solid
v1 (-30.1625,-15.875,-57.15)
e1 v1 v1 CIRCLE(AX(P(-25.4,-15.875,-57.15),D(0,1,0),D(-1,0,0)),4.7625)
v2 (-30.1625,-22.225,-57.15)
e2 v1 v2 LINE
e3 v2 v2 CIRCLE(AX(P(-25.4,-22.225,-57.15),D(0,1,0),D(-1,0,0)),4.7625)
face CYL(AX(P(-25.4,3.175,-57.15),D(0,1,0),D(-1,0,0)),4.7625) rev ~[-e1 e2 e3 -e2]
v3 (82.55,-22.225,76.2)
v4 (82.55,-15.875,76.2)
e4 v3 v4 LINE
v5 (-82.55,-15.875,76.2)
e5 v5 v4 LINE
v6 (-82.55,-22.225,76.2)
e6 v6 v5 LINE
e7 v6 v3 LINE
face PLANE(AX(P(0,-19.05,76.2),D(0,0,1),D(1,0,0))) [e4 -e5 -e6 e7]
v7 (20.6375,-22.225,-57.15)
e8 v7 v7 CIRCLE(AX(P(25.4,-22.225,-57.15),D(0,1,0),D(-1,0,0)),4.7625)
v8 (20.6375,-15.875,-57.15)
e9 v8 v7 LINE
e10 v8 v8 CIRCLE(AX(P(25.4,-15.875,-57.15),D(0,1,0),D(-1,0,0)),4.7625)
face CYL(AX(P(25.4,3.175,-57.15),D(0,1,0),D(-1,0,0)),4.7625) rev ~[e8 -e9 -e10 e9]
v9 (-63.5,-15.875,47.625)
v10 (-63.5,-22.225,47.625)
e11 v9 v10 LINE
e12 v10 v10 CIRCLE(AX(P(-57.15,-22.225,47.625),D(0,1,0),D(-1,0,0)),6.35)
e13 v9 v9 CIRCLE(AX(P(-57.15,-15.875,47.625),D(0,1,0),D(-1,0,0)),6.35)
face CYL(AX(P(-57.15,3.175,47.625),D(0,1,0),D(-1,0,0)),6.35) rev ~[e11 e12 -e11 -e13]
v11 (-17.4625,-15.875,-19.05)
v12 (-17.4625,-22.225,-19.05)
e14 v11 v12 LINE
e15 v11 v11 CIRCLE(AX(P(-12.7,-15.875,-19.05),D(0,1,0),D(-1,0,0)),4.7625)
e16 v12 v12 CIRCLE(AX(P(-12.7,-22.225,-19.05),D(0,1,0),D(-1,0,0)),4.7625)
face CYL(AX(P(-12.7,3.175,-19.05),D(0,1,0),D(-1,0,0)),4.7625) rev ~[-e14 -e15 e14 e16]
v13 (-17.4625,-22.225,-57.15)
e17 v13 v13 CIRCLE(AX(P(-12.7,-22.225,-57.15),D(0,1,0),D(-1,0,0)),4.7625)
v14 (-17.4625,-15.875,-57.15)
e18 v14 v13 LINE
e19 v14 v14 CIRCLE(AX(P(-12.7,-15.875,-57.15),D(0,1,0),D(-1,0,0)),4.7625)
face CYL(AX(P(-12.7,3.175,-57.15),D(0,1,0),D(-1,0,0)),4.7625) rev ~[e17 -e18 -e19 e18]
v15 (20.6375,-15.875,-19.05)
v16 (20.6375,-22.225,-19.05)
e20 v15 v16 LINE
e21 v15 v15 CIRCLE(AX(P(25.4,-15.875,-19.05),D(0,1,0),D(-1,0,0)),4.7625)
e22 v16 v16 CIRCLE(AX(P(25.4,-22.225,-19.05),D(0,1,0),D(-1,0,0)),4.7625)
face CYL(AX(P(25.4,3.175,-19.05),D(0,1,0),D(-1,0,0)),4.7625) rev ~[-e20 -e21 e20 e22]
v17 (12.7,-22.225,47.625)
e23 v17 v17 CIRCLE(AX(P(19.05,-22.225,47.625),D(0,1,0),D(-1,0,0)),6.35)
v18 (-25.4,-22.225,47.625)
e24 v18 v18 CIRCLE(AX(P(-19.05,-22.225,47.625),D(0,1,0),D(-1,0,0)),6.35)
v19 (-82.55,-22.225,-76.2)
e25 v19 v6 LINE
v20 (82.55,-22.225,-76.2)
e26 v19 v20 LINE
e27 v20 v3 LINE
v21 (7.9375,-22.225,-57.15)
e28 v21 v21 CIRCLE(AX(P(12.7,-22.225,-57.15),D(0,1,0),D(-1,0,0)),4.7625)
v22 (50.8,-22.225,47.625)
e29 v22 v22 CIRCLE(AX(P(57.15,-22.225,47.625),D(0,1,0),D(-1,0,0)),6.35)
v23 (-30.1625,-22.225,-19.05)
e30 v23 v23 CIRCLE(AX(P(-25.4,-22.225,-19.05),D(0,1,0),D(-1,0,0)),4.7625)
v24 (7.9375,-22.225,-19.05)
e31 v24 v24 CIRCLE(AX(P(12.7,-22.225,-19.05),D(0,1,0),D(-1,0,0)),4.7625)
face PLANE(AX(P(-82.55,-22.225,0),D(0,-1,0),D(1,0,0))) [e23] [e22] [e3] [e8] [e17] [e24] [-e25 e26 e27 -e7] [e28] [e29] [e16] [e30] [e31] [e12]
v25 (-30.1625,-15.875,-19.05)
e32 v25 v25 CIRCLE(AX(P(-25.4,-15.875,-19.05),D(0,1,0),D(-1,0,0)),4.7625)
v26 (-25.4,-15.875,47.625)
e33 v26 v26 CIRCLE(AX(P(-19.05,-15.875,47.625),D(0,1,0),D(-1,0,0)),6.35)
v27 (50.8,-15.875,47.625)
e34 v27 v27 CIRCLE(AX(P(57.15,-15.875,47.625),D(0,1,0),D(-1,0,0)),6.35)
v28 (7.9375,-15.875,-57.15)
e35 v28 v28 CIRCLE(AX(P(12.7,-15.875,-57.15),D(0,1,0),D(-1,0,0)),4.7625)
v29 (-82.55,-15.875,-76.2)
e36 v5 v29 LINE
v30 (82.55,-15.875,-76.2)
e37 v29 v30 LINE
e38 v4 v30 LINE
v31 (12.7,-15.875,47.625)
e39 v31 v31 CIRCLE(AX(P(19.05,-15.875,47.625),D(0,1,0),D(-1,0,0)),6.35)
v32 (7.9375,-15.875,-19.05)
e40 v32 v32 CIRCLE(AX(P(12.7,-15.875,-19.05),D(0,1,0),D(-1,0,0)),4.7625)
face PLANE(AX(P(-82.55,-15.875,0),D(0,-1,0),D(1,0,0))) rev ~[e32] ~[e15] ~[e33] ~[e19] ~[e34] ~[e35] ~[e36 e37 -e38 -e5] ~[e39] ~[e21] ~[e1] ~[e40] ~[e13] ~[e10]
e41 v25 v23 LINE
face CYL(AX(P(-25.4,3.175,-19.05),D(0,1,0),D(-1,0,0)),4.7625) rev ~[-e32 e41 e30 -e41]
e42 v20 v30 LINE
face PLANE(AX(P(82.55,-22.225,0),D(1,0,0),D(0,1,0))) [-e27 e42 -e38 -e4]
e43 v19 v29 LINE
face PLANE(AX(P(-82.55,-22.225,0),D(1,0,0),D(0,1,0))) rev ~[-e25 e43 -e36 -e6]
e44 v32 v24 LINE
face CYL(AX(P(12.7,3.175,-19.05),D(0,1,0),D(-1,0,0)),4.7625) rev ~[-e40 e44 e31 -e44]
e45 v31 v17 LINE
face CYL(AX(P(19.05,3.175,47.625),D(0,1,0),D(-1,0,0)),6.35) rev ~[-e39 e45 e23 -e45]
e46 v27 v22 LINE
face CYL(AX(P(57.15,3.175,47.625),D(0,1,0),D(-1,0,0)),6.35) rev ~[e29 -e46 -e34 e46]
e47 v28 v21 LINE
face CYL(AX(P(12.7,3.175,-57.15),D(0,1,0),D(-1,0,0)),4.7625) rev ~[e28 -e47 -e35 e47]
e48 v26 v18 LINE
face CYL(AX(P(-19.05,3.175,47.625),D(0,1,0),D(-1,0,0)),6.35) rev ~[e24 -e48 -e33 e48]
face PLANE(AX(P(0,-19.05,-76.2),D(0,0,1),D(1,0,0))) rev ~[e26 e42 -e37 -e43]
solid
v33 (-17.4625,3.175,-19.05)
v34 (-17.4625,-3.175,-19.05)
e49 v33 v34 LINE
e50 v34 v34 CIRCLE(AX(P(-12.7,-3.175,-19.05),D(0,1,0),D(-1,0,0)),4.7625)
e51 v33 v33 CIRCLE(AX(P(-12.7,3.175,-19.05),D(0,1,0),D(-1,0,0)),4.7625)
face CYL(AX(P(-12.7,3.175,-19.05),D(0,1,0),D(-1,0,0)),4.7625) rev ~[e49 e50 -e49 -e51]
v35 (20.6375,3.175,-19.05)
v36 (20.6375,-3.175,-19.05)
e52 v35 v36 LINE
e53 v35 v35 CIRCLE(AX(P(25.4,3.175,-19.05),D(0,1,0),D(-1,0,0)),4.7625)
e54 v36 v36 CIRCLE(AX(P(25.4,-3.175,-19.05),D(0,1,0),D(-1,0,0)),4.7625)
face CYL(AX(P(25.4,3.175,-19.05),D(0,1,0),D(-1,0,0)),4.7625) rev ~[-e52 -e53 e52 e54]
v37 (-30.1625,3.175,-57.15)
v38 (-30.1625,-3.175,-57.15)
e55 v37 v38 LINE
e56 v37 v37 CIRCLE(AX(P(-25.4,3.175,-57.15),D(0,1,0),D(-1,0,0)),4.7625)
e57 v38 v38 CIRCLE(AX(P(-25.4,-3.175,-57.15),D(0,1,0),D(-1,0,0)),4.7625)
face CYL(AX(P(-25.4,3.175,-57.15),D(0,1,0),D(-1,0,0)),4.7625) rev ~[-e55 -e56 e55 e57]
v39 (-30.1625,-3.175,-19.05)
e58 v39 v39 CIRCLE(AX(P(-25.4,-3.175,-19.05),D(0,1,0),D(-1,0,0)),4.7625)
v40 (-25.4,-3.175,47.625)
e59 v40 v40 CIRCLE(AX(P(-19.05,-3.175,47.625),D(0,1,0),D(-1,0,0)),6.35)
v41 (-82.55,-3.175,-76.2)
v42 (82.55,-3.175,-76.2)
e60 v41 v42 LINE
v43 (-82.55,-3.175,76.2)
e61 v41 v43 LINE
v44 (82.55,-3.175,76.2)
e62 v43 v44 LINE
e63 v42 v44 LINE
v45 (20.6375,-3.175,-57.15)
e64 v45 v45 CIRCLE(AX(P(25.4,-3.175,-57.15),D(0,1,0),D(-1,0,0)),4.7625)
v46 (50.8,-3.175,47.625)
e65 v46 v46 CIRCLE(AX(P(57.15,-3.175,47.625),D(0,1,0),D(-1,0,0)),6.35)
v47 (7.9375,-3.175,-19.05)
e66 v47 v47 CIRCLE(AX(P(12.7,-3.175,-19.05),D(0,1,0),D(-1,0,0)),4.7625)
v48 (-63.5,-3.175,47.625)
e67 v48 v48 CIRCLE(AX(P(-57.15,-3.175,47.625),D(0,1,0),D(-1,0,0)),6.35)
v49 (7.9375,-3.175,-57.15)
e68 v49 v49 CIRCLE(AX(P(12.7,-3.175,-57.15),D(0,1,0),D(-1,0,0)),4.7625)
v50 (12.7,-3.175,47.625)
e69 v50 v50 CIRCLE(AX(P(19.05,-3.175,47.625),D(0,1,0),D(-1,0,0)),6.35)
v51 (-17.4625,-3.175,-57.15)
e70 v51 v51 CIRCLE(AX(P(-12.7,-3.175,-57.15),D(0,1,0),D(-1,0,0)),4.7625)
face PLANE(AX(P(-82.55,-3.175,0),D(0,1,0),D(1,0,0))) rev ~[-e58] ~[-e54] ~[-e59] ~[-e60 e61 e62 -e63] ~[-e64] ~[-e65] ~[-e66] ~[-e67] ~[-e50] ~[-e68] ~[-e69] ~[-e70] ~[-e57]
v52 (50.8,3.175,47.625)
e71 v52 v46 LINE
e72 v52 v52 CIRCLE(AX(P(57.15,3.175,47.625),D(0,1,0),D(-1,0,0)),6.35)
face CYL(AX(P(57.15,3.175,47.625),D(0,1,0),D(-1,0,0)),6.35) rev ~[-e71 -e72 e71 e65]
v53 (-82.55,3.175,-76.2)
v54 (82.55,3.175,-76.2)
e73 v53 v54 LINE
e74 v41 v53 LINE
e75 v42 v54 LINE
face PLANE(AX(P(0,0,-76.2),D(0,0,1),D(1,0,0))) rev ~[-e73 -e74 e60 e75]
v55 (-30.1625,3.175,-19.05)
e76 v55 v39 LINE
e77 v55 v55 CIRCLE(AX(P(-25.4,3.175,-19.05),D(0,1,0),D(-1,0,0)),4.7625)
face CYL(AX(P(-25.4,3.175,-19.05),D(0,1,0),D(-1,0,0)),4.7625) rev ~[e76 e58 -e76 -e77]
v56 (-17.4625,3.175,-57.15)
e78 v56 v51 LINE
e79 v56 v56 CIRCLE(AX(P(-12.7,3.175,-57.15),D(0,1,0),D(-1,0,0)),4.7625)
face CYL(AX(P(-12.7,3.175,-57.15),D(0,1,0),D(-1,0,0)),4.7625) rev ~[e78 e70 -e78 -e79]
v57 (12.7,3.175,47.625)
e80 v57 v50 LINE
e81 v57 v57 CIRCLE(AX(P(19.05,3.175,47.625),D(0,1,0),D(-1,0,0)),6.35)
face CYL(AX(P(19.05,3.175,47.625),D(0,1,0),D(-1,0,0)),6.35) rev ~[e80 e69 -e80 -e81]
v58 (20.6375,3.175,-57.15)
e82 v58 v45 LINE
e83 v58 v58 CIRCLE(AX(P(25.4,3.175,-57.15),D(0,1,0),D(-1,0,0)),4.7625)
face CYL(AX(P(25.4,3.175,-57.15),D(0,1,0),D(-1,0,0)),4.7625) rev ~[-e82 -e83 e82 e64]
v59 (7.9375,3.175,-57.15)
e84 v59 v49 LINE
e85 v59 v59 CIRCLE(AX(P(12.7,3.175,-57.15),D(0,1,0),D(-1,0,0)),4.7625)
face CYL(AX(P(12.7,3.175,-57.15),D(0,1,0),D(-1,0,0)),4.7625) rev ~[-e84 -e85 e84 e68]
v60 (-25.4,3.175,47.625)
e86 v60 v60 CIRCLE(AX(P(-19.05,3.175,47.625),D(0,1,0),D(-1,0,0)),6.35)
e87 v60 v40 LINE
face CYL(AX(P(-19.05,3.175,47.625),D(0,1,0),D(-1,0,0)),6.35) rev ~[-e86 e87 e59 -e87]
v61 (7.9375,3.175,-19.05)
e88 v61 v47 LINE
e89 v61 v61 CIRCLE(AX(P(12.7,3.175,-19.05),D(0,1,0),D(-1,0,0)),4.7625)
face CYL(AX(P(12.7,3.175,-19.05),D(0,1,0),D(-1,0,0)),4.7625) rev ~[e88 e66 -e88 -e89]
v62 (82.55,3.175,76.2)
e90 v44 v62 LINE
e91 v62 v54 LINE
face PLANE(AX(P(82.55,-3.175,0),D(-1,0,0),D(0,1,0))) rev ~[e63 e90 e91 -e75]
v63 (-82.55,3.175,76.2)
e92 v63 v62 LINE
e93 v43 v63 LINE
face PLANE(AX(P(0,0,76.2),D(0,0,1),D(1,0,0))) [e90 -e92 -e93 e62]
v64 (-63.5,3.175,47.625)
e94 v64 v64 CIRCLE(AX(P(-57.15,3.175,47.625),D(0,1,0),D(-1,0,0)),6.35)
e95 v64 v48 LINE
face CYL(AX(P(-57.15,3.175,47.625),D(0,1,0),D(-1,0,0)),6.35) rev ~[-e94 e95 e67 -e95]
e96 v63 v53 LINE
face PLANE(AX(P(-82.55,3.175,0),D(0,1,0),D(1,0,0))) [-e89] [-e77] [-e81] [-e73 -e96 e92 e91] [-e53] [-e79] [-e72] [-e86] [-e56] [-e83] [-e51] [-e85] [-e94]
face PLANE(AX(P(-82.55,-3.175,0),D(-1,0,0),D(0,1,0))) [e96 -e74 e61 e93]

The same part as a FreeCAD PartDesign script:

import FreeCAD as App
import Part
import Sketcher
from FreeCAD import Vector
Q = App.Units.Quantity


def add_polygon(sketch, points):
    """Adds a closed chain of lines whose ends are joined by coincident constraints."""
    first, n = sketch.GeometryCount, len(points)
    for a, b in zip(points, points[1:] + points[:1]):
        sketch.addGeometry(Part.LineSegment(App.Vector(*a, 0), App.Vector(*b, 0)), False)
    for i in range(n):
        sketch.addConstraint(Sketcher.Constraint("Coincident", first + i, 2, first + (i + 1) % n, 1))

doc = App.newDocument("Part")
body = doc.addObject("PartDesign::Body", "Body")
body.AllowCompound = True

# Sketch on XY plane
sketch1 = body.newObject("Sketcher::SketchObject", "Sketch")
sketch1.AttachmentSupport = (doc.getObject("XY_Plane"), [""])
sketch1.MapMode = "FlatFace"
add_polygon(sketch1, [(-83, 3), (-83, -3), (83, -3), (83, 3)])  # lines 0-3
add_polygon(sketch1, [(-83, -16), (-83, -22), (83, -22), (83, -16)])  # lines 4-7
sketch1.addConstraint([
    Sketcher.Constraint("Vertical", 0),
    Sketcher.Constraint("Horizontal", 1),
    Sketcher.Constraint("Vertical", 2),
    Sketcher.Constraint("Horizontal", 3),
    Sketcher.Constraint("Vertical", 4),
    Sketcher.Constraint("Horizontal", 5),
    Sketcher.Constraint("Vertical", 6),
    Sketcher.Constraint("Horizontal", 7),
    Sketcher.Constraint("Symmetric", 0, 2, 2, 2, -1, 1),
    Sketcher.Constraint("Vertical", 3, 2, 4, 2),
    Sketcher.Constraint("Vertical", 2, 2, 5, 2),
    Sketcher.Constraint("Equal", 2, 4),
    Sketcher.Constraint("DistanceX", 1, 1, 1, 2, Q("6.5 in")),
    Sketcher.Constraint("DistanceY", 4, 2, 3, 2, Q("1 in")),
    Sketcher.Constraint("DistanceY", 0, 2, 0, 1, Q("0.25 in")),
])
pad1 = body.newObject("PartDesign::Pad", "Pad")
pad1.Profile = sketch1
pad1.Length = Q("6 in")
pad1.Midplane = True

# Sketch on XZ plane
sketch2 = body.newObject("Sketcher::SketchObject", "Sketch001")
sketch2.AttachmentSupport = (doc.getObject("XZ_Plane"), [""])
sketch2.MapMode = "FlatFace"
sketch2.AttachmentOffset = App.Placement(Vector(0, 0, -0.125 * 25.4), App.Rotation())
sketch2.addGeometry([
    Part.Circle(Vector(12.7, -57.1, 0), Vector(0, 0, 1), 4.8),  # 0
    Part.Circle(Vector(-25.4, -57.1, 0), Vector(0, 0, 1), 4.8),  # 1
    Part.Circle(Vector(-25.4, -19.1, 0), Vector(0, 0, 1), 4.8),  # 2
    Part.Circle(Vector(12.7, -19.1, 0), Vector(0, 0, 1), 4.8),  # 3
    Part.Circle(Vector(57.1, 47.6, 0), Vector(0, 0, 1), 6.3),  # 4
    Part.Circle(Vector(19.1, 47.6, 0), Vector(0, 0, 1), 6.3),  # 5
    Part.Circle(Vector(-19.1, 47.6, 0), Vector(0, 0, 1), 6.3),  # 6
    Part.Circle(Vector(-57.1, 47.6, 0), Vector(0, 0, 1), 6.3),  # 7
    Part.Circle(Vector(25.4, -19.1, 0), Vector(0, 0, 1), 4.8),  # 8
    Part.Circle(Vector(-12.7, -19.1, 0), Vector(0, 0, 1), 4.8),  # 9
    Part.Circle(Vector(-12.7, -57.1, 0), Vector(0, 0, 1), 4.8),  # 10
    Part.Circle(Vector(25.4, -57.1, 0), Vector(0, 0, 1), 4.8),  # 11
], False)
sketch2.addConstraint([
    Sketcher.Constraint("Equal", 0, 1),
    Sketcher.Constraint("Equal", 1, 2),
    Sketcher.Constraint("Equal", 2, 3),
    Sketcher.Constraint("Equal", 4, 5),
    Sketcher.Constraint("Equal", 5, 6),
    Sketcher.Constraint("Equal", 6, 7),
    Sketcher.Constraint("Equal", 3, 8),
    Sketcher.Constraint("Equal", 8, 9),
    Sketcher.Constraint("Equal", 9, 10),
    Sketcher.Constraint("Equal", 10, 11),
    Sketcher.Constraint("Symmetric", 5, 3, 6, 3, -2),
    Sketcher.Constraint("Symmetric", 4, 3, 7, 3, -2),
    Sketcher.Constraint("Symmetric", 2, 3, 8, 3, -2),
    Sketcher.Constraint("Symmetric", 3, 3, 9, 3, -2),
    Sketcher.Constraint("Symmetric", 0, 3, 10, 3, -2),
    Sketcher.Constraint("Symmetric", 1, 3, 11, 3, -2),
    Sketcher.Constraint("Horizontal", 0, 3, 1, 3),
    Sketcher.Constraint("Horizontal", 2, 3, 3, 3),
    Sketcher.Constraint("Horizontal", 4, 3, 5, 3),
    Sketcher.Constraint("Vertical", 1, 3, 2, 3),
    Sketcher.Constraint("Vertical", 0, 3, 3, 3),
    Sketcher.Constraint("Diameter", 4, Q("0.5 in")),
    Sketcher.Constraint("Diameter", 0, Q("0.375 in")),
    Sketcher.Constraint("DistanceX", 1, 3, -1, 1, Q("1 in")),
    Sketcher.Constraint("DistanceX", 6, 3, 4, 3, Q("3 in")),
    Sketcher.Constraint("DistanceX", 9, 3, 3, 3, Q("1 in")),
    Sketcher.Constraint("DistanceY", 1, 3, 2, 3, Q("1.5 in")),
    Sketcher.Constraint("DistanceX", 5, 3, 4, 3, Q("1.5 in")),
    Sketcher.Constraint("DistanceY", 0, 3, -1, 1, Q("2.25 in")),
    Sketcher.Constraint("DistanceY", -1, 1, 4, 3, Q("1.875 in")),
])
pocket1 = body.newObject("PartDesign::Pocket", "Pocket")
pocket1.Profile = sketch2
pocket1.Type = "ThroughAll"
pocket1.Reversed = True

doc.recompute()
